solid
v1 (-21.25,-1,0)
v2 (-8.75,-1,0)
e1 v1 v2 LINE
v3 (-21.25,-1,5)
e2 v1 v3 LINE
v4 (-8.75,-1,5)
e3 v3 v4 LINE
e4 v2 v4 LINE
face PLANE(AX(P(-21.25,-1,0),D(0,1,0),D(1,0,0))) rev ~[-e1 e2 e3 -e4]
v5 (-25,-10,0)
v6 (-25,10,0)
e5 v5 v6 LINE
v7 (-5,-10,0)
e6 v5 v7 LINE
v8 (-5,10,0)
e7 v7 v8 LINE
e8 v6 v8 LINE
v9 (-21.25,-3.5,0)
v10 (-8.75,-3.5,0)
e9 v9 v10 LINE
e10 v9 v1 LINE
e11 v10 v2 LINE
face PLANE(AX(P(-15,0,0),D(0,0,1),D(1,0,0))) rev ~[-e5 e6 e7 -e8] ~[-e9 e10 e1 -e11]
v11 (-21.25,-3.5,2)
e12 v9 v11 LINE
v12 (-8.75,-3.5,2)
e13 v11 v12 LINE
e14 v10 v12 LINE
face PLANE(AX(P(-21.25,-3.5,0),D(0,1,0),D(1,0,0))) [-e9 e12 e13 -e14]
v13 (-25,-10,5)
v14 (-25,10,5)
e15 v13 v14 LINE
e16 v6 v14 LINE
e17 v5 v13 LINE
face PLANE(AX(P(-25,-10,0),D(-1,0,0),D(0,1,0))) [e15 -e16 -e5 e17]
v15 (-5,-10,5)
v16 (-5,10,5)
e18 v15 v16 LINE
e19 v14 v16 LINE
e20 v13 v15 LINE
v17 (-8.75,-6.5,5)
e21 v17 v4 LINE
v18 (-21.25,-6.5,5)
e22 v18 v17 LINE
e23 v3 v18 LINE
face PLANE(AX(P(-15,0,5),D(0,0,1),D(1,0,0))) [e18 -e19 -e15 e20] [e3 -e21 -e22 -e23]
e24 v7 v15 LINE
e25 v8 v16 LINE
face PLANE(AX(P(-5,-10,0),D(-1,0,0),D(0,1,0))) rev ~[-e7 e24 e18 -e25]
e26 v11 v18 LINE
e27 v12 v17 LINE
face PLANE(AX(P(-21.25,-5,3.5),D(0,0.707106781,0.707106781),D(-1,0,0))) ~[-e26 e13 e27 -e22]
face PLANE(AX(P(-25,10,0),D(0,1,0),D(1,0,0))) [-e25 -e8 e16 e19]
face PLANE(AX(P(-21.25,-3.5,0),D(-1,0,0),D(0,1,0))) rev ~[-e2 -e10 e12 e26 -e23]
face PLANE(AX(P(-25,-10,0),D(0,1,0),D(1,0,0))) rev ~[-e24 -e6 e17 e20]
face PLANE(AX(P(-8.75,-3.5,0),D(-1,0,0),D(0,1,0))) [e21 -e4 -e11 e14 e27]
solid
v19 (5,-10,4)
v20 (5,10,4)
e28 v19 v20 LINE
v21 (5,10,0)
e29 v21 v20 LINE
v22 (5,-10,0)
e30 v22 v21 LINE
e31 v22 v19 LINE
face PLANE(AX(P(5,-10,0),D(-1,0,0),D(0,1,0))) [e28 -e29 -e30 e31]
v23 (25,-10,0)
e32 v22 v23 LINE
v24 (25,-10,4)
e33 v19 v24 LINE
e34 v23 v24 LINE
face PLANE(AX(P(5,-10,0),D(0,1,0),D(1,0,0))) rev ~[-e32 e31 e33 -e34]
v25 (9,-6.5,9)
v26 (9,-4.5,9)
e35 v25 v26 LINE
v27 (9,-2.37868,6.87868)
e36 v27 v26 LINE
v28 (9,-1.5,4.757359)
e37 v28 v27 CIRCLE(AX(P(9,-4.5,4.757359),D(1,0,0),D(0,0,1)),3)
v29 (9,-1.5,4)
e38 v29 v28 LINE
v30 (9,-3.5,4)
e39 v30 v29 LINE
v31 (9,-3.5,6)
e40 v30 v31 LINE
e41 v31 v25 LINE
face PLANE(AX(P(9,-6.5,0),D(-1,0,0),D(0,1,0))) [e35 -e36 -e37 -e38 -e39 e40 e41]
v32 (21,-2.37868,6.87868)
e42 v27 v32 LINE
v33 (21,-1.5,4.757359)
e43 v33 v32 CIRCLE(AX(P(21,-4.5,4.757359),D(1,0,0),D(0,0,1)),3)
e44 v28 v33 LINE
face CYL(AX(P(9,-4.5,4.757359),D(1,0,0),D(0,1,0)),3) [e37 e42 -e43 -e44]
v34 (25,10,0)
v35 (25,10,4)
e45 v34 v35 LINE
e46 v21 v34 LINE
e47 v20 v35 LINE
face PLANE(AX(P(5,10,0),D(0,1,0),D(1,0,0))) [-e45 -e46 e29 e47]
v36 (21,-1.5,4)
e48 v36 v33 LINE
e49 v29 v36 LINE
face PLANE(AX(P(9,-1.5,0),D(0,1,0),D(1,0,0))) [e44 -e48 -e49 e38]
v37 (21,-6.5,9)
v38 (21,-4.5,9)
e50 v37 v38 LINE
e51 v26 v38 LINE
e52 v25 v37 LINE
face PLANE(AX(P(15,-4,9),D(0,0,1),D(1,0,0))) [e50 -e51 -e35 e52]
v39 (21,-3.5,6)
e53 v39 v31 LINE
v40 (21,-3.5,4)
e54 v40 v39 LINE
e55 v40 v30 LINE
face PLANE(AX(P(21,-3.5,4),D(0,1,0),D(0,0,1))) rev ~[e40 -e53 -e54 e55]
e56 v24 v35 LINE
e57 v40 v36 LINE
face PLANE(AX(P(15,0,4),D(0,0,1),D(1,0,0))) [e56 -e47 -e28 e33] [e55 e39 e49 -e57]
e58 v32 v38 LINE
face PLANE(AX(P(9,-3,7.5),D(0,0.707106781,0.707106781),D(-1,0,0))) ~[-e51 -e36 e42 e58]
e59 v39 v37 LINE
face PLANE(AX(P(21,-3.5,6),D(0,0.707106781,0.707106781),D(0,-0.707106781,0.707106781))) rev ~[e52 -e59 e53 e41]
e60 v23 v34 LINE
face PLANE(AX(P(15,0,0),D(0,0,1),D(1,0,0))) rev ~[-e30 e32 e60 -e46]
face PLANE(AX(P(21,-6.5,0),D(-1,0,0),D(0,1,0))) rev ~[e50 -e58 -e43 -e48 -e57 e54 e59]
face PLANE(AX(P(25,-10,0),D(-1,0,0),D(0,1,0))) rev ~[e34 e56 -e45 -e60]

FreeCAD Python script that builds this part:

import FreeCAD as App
import Part
import Sketcher
from FreeCAD import Vector


def edges_at(feature, points):
    """Names of the edges that pass closest to the given points."""
    edges = feature.Shape.Edges
    near = lambda p: min(range(len(edges)), key=lambda i: edges[i].distToShape(Part.Vertex(*p))[0])
    return sorted({f"Edge{near(p) + 1}" for p in points})

doc = App.newDocument("Part")
body = doc.addObject("PartDesign::Body", "Body")

sketch1 = body.newObject("Sketcher::SketchObject", "Sketch")
sketch1.AttachmentSupport = (doc.getObject("XY_Plane"), [""])
sketch1.MapMode = "FlatFace"
sketch1.addGeometry(Part.LineSegment(Vector(9, -2, 0), Vector(9, -6, 0)), False)
sketch1.addGeometry(Part.LineSegment(Vector(9, -6, 0), Vector(21, -6, 0)), False)
sketch1.addGeometry(Part.LineSegment(Vector(21, -6, 0), Vector(21, -2, 0)), False)
sketch1.addGeometry(Part.LineSegment(Vector(21, -2, 0), Vector(9, -2, 0)), False)
sketch1.addConstraint(Sketcher.Constraint("Coincident", 0, 2, 1, 1))
sketch1.addConstraint(Sketcher.Constraint("Coincident", 1, 2, 2, 1))
sketch1.addConstraint(Sketcher.Constraint("Coincident", 2, 2, 3, 1))
sketch1.addConstraint(Sketcher.Constraint("Coincident", 3, 2, 0, 1))
sketch1.addConstraint(Sketcher.Constraint("Vertical", 0))
sketch1.addConstraint(Sketcher.Constraint("Horizontal", 1))
sketch1.addConstraint(Sketcher.Constraint("Vertical", 2))
sketch1.addConstraint(Sketcher.Constraint("Horizontal", 3))
sketch1.addConstraint(Sketcher.Constraint("DistanceX", 1, 1, 1, 2, 12.0))
sketch1.addConstraint(Sketcher.Constraint("DistanceY", 0, 2, 0, 1, 5.0))
sketch1.addConstraint(Sketcher.Constraint("DistanceX", -1, 1, 0, 2, 9.0))
sketch1.addConstraint(Sketcher.Constraint("DistanceY", 0, 2, -1, 1, 6.5))
pad1 = body.newObject("PartDesign::Pad", "Pad")
pad1.Profile = sketch1
pad1.Length = 9

sketch2 = body.newObject("Sketcher::SketchObject", "Sketch001")
sketch2.AttachmentSupport = (doc.getObject("XY_Plane"), [""])
sketch2.MapMode = "FlatFace"
sketch2.addGeometry(Part.LineSegment(Vector(5, 10, 0), Vector(5, -10, 0)), False)
sketch2.addGeometry(Part.LineSegment(Vector(5, -10, 0), Vector(25, -10, 0)), False)
sketch2.addGeometry(Part.LineSegment(Vector(25, -10, 0), Vector(25, 10, 0)), False)
sketch2.addGeometry(Part.LineSegment(Vector(25, 10, 0), Vector(5, 10, 0)), False)
sketch2.addGeometry(Part.LineSegment(Vector(21, -6, 0), Vector(9, -6, 0)), False)
sketch2.addGeometry(Part.LineSegment(Vector(9, -6, 0), Vector(9, -2, 0)), False)
sketch2.addGeometry(Part.LineSegment(Vector(9, -2, 0), Vector(21, -2, 0)), False)
sketch2.addGeometry(Part.LineSegment(Vector(21, -2, 0), Vector(21, -6, 0)), False)
sketch2.addConstraint(Sketcher.Constraint("Coincident", 0, 2, 1, 1))
sketch2.addConstraint(Sketcher.Constraint("Coincident", 1, 2, 2, 1))
sketch2.addConstraint(Sketcher.Constraint("Coincident", 2, 2, 3, 1))
sketch2.addConstraint(Sketcher.Constraint("Coincident", 3, 2, 0, 1))
sketch2.addConstraint(Sketcher.Constraint("Coincident", 4, 2, 5, 1))
sketch2.addConstraint(Sketcher.Constraint("Coincident", 5, 2, 6, 1))
sketch2.addConstraint(Sketcher.Constraint("Coincident", 6, 2, 7, 1))
sketch2.addConstraint(Sketcher.Constraint("Coincident", 7, 2, 4, 1))
sketch2.addConstraint(Sketcher.Constraint("Vertical", 0))
sketch2.addConstraint(Sketcher.Constraint("Horizontal", 1))
sketch2.addConstraint(Sketcher.Constraint("Vertical", 2))
sketch2.addConstraint(Sketcher.Constraint("Horizontal", 3))
sketch2.addConstraint(Sketcher.Constraint("Horizontal", 4))
sketch2.addConstraint(Sketcher.Constraint("Vertical", 5))
sketch2.addConstraint(Sketcher.Constraint("Horizontal", 6))
sketch2.addConstraint(Sketcher.Constraint("Vertical", 7))
sketch2.addConstraint(Sketcher.Constraint("Equal", 3, 0))
sketch2.addConstraint(Sketcher.Constraint("DistanceX", 1, 1, 1, 2, 20.0))
sketch2.addConstraint(Sketcher.Constraint("DistanceX", 4, 2, 4, 1, 12.0))
sketch2.addConstraint(Sketcher.Constraint("DistanceY", 5, 1, 5, 2, 5.0))
sketch2.addConstraint(Sketcher.Constraint("DistanceX", -1, 1, 0, 2, 5.0))
sketch2.addConstraint(Sketcher.Constraint("DistanceY", 0, 2, -1, 1, 10.0))
sketch2.addConstraint(Sketcher.Constraint("DistanceX", -1, 1, 4, 2, 9.0))
sketch2.addConstraint(Sketcher.Constraint("DistanceY", 4, 2, -1, 1, 6.5))
pad2 = body.newObject("PartDesign::Pad", "Pad001")
pad2.Profile = sketch2
pad2.Length = 4

sketch3 = body.newObject("Sketcher::SketchObject", "Sketch002")
sketch3.AttachmentSupport = (doc.getObject("YZ_Plane"), [""])
sketch3.MapMode = "FlatFace"
sketch3.AttachmentOffset = App.Placement(Vector(0, 0, 21), App.Rotation())
sketch3.addGeometry(Part.LineSegment(Vector(-3.5, 6, 0), Vector(-6.5, 9, 0)), False)
sketch3.addGeometry(Part.LineSegment(Vector(-6.5, 9, 0), Vector(-6.5, 4, 0)), False)
sketch3.addGeometry(Part.LineSegment(Vector(-6.5, 4, 0), Vector(-3.5, 4, 0)), False)
sketch3.addGeometry(Part.LineSegment(Vector(-3.5, 4, 0), Vector(-3.5, 6, 0)), False)
sketch3.addConstraint(Sketcher.Constraint("Coincident", 0, 2, 1, 1))
sketch3.addConstraint(Sketcher.Constraint("Coincident", 1, 2, 2, 1))
sketch3.addConstraint(Sketcher.Constraint("Coincident", 2, 2, 3, 1))
sketch3.addConstraint(Sketcher.Constraint("Coincident", 3, 2, 0, 1))
sketch3.addConstraint(Sketcher.Constraint("Vertical", 1))
sketch3.addConstraint(Sketcher.Constraint("Horizontal", 2))
sketch3.addConstraint(Sketcher.Constraint("Vertical", 3))
sketch3.addConstraint(Sketcher.Constraint("DistanceX", 2, 1, 2, 2, 3.0))
sketch3.addConstraint(Sketcher.Constraint("DistanceY", 1, 2, 1, 1, 5.0))
sketch3.addConstraint(Sketcher.Constraint("DistanceY", 3, 1, 3, 2, 2.0))
sketch3.addConstraint(Sketcher.Constraint("DistanceY", -1, 1, 0, 2, 9.0))
sketch3.addConstraint(Sketcher.Constraint("DistanceX", 0, 2, -1, 1, 6.5))
pocket1 = body.newObject("PartDesign::Pocket", "Pocket")
pocket1.Profile = sketch3
pocket1.Length = 12
doc.recompute()

chamfer = body.newObject("PartDesign::Chamfer", "Chamfer")
chamfer.Base = (pocket1, edges_at(pocket1, [(15, -1.5, 9)]))
chamfer.Size = 3
doc.recompute()

fillet = body.newObject("PartDesign::Fillet", "Fillet")
fillet.Base = (chamfer, edges_at(chamfer, [(15, -1.5, 6)]))
fillet.Radius = 3
body2 = doc.addObject("PartDesign::Body", "Body001")

sketch4 = body2.newObject("Sketcher::SketchObject", "Sketch003")
sketch4.AttachmentSupport = (doc.getObject("XY_Plane001"), [""])
sketch4.MapMode = "FlatFace"
sketch4.addGeometry(Part.LineSegment(Vector(-25, 10, 0), Vector(-25, -10, 0)), False)
sketch4.addGeometry(Part.LineSegment(Vector(-25, -10, 0), Vector(-5, -10, 0)), False)
sketch4.addGeometry(Part.LineSegment(Vector(-5, -10, 0), Vector(-5, 10, 0)), False)
sketch4.addGeometry(Part.LineSegment(Vector(-5, 10, 0), Vector(-25, 10, 0)), False)
sketch4.addGeometry(Part.LineSegment(Vector(-8.8, -3.5, 0), Vector(-21.2, -3.5, 0)), False)
sketch4.addGeometry(Part.LineSegment(Vector(-21.2, -3.5, 0), Vector(-21.2, -1, 0)), False)
sketch4.addGeometry(Part.LineSegment(Vector(-21.2, -1, 0), Vector(-8.8, -1, 0)), False)
sketch4.addGeometry(Part.LineSegment(Vector(-8.8, -1, 0), Vector(-8.8, -3.5, 0)), False)
sketch4.addConstraint(Sketcher.Constraint("Coincident", 0, 2, 1, 1))
sketch4.addConstraint(Sketcher.Constraint("Coincident", 1, 2, 2, 1))
sketch4.addConstraint(Sketcher.Constraint("Coincident", 2, 2, 3, 1))
sketch4.addConstraint(Sketcher.Constraint("Coincident", 3, 2, 0, 1))
sketch4.addConstraint(Sketcher.Constraint("Coincident", 4, 2, 5, 1))
sketch4.addConstraint(Sketcher.Constraint("Coincident", 5, 2, 6, 1))
sketch4.addConstraint(Sketcher.Constraint("Coincident", 6, 2, 7, 1))
sketch4.addConstraint(Sketcher.Constraint("Coincident", 7, 2, 4, 1))
sketch4.addConstraint(Sketcher.Constraint("Vertical", 0))
sketch4.addConstraint(Sketcher.Constraint("Horizontal", 1))
sketch4.addConstraint(Sketcher.Constraint("Vertical", 2))
sketch4.addConstraint(Sketcher.Constraint("Horizontal", 3))
sketch4.addConstraint(Sketcher.Constraint("Horizontal", 4))
sketch4.addConstraint(Sketcher.Constraint("Vertical", 5))
sketch4.addConstraint(Sketcher.Constraint("Horizontal", 6))
sketch4.addConstraint(Sketcher.Constraint("Vertical", 7))
sketch4.addConstraint(Sketcher.Constraint("Equal", 3, 0))
sketch4.addConstraint(Sketcher.Constraint("DistanceX", 1, 1, 1, 2, 20.0))
sketch4.addConstraint(Sketcher.Constraint("DistanceX", 4, 2, 4, 1, 12.5))
sketch4.addConstraint(Sketcher.Constraint("DistanceY", 5, 1, 5, 2, 2.5))
sketch4.addConstraint(Sketcher.Constraint("DistanceX", 0, 2, -1, 1, 25.0))
sketch4.addConstraint(Sketcher.Constraint("DistanceY", 0, 2, -1, 1, 10.0))
sketch4.addConstraint(Sketcher.Constraint("DistanceY", 5, 2, -1, 1, 1.0))
sketch4.addConstraint(Sketcher.Constraint("DistanceX", 4, 2, -1, 1, 21.25))
pad3 = body2.newObject("PartDesign::Pad", "Pad002")
pad3.Profile = sketch4
pad3.Length = 5
doc.recompute()

chamfer2 = body2.newObject("PartDesign::Chamfer", "Chamfer001")
chamfer2.Base = (pad3, edges_at(pad3, [(-15, -3.5, 5)]))
chamfer2.ChamferType = "Two distances"
chamfer2.Size = 3
chamfer2.Size2 = 3

doc.recompute()
